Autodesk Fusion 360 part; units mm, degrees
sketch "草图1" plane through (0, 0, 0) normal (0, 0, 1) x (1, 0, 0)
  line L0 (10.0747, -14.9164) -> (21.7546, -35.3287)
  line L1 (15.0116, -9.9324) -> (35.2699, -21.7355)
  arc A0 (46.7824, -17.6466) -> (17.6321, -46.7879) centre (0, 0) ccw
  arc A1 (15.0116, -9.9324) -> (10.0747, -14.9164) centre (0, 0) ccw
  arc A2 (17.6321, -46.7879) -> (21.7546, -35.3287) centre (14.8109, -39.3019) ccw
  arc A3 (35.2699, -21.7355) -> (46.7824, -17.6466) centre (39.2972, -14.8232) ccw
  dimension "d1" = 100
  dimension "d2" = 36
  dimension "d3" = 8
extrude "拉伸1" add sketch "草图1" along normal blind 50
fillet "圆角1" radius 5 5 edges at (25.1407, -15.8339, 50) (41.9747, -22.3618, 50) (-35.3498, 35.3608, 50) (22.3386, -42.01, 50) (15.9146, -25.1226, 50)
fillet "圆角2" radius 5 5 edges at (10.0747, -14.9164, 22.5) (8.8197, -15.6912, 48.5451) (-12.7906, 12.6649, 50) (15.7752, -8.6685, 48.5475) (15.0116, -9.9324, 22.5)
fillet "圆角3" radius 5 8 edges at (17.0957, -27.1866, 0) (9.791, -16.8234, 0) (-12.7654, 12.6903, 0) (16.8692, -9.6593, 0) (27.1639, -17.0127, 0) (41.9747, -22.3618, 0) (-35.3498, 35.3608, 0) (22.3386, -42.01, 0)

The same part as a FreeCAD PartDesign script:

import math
import FreeCAD as App
import Part
import Sketcher


def edges_at(feature, points):
    """Names of the edges that pass closest to the given points."""
    edges = feature.Shape.Edges
    near = lambda p: min(range(len(edges)), key=lambda i: edges[i].distToShape(Part.Vertex(*p))[0])
    return sorted({f"Edge{near(p) + 1}" for p in points})

doc = App.newDocument("Part")
body = doc.addObject("PartDesign::Body", "Body")

# Sketch on XY plane
sketch1 = body.newObject("Sketcher::SketchObject", "Sketch")
sketch1.AttachmentSupport = (doc.getObject("XY_Plane"), [""])
sketch1.MapMode = "FlatFace"
sketch1.addGeometry([
    Part.LineSegment(App.Vector(22, -35, 0), App.Vector(10, -15, 0)),  # 0
    Part.ArcOfCircle(Part.Circle(App.Vector(0, 0, 0), App.Vector(0, 0, 1), 18), math.radians(-33), math.radians(304)),  # 1
    Part.LineSegment(App.Vector(15, -10, 0), App.Vector(35, -22, 0)),  # 2
    Part.ArcOfCircle(Part.Circle(App.Vector(39, -15, 0), App.Vector(0, 0, 1), 8), math.radians(-120), math.radians(-21)),  # 3
    Part.ArcOfCircle(Part.Circle(App.Vector(0, 0, 0), App.Vector(0, 0, 1), 50), math.radians(-21), math.radians(291)),  # 4
    Part.ArcOfCircle(Part.Circle(App.Vector(15, -39, 0), App.Vector(0, 0, 1), 8), math.radians(-69), math.radians(30)),  # 5
], False)
sketch1.addConstraint([
    Sketcher.Constraint("Coincident", 0, 2, 1, 2),
    Sketcher.Constraint("Coincident", 1, 1, 2, 1),
    Sketcher.Constraint("Tangent", 2, 2, 3, 1),
    Sketcher.Constraint("Tangent", 3, 2, 4, 1),
    Sketcher.Constraint("Tangent", 4, 2, 5, 1),
    Sketcher.Constraint("Tangent", 5, 2, 0, 1),
    Sketcher.Constraint("Coincident", 1, 3, -1, 1),
    Sketcher.Constraint("Coincident", 4, 3, -1, 1),
    Sketcher.Constraint("Equal", 3, 5),
    Sketcher.Constraint("Radius", 1, 18.0),
    Sketcher.Constraint("Radius", 3, 8.0),
    Sketcher.Constraint("Radius", 4, 50.0),
    Sketcher.Constraint("DistanceX", -1, 1, 2, 2, 35.27),
    Sketcher.Constraint("Distance", 2, 23.446),
    Sketcher.Constraint("DistanceX", -1, 1, 5, 3, 14.811),
    Sketcher.Constraint("DistanceX", 0, 2, 1, 1, 4.937),
])
pad1 = body.newObject("PartDesign::Pad", "Pad")
pad1.Profile = sketch1
pad1.Length = 50
doc.recompute()

fillet = body.newObject("PartDesign::Fillet", "Fillet")
fillet.Base = (pad1, edges_at(pad1, [
    (25.141, -15.834, 50),
    (41.975, -22.362, 50),
    (-35.35, 35.361, 50),
    (22.339, -42.01, 50),
    (15.915, -25.123, 50),
]))
fillet.Radius = 5
doc.recompute()

fillet2 = body.newObject("PartDesign::Fillet", "Fillet001")
fillet2.Base = (fillet, edges_at(fillet, [
    (10.075, -14.916, 22.5),
    (8.82, -15.691, 48.545),
    (-12.791, 12.665, 50),
    (15.775, -8.668, 48.547),
    (15.012, -9.932, 22.5),
]))
fillet2.Radius = 5
doc.recompute()

fillet3 = body.newObject("PartDesign::Fillet", "Fillet002")
fillet3.Base = (fillet2, edges_at(fillet2, [
    (17.096, -27.187, 0),
    (9.791, -16.823, 0),
    (-12.765, 12.69, 0),
    (16.869, -9.659, 0),
    (27.164, -17.013, 0),
    (41.975, -22.362, 0),
    (-35.35, 35.361, 0),
    (22.339, -42.01, 0),
]))
fillet3.Radius = 5

doc.recompute()
